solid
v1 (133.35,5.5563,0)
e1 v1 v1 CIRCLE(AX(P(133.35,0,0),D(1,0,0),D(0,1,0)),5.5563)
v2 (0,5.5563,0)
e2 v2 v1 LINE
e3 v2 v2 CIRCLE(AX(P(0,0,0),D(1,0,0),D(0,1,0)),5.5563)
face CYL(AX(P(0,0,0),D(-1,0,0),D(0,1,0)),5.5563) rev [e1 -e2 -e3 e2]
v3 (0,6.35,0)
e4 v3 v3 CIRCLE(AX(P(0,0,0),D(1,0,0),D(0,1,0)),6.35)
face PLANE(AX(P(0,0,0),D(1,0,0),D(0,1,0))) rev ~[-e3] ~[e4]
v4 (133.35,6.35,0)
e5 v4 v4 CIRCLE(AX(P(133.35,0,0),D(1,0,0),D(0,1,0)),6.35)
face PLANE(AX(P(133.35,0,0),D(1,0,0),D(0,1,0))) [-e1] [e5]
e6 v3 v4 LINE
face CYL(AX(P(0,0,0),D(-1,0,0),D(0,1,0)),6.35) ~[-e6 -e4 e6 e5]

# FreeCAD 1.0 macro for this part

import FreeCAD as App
import Part
import Sketcher
from FreeCAD import Vector
Q = App.Units.Quantity

doc = App.newDocument("Part")
params = doc.addObject("Spreadsheet::Sheet", "Params")
for row, (alias, value) in enumerate([
    ("sketch1_diameter", "0.5 in"),
    ("sketch1_diameter2", "0.4375 in"),
    ("pad1_length", "5.25 in"),
], start=1):
    params.set(f"A{row}", alias)
    params.set(f"B{row}", "=" + value)
    params.setAlias(f"B{row}", alias)

body = doc.addObject("PartDesign::Body", "Body")

# Sketch on YZ plane
sketch1 = body.newObject("Sketcher::SketchObject", "Sketch")
sketch1.AttachmentSupport = (doc.getObject("YZ_Plane"), [""])
sketch1.MapMode = "FlatFace"
sketch1.addGeometry([
    Part.Circle(Vector(0, 0, 0), Vector(0, 0, 1), 6),
    Part.Circle(Vector(0, 0, 0), Vector(0, 0, 1), 6),
], False)
sketch1.addConstraint([
    Sketcher.Constraint("Coincident", 0, 3, -1, 1),
    Sketcher.Constraint("Coincident", 1, 3, -1, 1),
    Sketcher.Constraint("Diameter", 0, Q("0.5 in")),
    Sketcher.Constraint("Diameter", 1, Q("0.4375 in")),
])
sketch1.setExpression("Constraints[2]", "Params.sketch1_diameter")
sketch1.setExpression("Constraints[3]", "Params.sketch1_diameter2")
pad1 = body.newObject("PartDesign::Pad", "Pad")
pad1.Profile = sketch1
pad1.setExpression("Length", "Params.pad1_length")

doc.recompute()
